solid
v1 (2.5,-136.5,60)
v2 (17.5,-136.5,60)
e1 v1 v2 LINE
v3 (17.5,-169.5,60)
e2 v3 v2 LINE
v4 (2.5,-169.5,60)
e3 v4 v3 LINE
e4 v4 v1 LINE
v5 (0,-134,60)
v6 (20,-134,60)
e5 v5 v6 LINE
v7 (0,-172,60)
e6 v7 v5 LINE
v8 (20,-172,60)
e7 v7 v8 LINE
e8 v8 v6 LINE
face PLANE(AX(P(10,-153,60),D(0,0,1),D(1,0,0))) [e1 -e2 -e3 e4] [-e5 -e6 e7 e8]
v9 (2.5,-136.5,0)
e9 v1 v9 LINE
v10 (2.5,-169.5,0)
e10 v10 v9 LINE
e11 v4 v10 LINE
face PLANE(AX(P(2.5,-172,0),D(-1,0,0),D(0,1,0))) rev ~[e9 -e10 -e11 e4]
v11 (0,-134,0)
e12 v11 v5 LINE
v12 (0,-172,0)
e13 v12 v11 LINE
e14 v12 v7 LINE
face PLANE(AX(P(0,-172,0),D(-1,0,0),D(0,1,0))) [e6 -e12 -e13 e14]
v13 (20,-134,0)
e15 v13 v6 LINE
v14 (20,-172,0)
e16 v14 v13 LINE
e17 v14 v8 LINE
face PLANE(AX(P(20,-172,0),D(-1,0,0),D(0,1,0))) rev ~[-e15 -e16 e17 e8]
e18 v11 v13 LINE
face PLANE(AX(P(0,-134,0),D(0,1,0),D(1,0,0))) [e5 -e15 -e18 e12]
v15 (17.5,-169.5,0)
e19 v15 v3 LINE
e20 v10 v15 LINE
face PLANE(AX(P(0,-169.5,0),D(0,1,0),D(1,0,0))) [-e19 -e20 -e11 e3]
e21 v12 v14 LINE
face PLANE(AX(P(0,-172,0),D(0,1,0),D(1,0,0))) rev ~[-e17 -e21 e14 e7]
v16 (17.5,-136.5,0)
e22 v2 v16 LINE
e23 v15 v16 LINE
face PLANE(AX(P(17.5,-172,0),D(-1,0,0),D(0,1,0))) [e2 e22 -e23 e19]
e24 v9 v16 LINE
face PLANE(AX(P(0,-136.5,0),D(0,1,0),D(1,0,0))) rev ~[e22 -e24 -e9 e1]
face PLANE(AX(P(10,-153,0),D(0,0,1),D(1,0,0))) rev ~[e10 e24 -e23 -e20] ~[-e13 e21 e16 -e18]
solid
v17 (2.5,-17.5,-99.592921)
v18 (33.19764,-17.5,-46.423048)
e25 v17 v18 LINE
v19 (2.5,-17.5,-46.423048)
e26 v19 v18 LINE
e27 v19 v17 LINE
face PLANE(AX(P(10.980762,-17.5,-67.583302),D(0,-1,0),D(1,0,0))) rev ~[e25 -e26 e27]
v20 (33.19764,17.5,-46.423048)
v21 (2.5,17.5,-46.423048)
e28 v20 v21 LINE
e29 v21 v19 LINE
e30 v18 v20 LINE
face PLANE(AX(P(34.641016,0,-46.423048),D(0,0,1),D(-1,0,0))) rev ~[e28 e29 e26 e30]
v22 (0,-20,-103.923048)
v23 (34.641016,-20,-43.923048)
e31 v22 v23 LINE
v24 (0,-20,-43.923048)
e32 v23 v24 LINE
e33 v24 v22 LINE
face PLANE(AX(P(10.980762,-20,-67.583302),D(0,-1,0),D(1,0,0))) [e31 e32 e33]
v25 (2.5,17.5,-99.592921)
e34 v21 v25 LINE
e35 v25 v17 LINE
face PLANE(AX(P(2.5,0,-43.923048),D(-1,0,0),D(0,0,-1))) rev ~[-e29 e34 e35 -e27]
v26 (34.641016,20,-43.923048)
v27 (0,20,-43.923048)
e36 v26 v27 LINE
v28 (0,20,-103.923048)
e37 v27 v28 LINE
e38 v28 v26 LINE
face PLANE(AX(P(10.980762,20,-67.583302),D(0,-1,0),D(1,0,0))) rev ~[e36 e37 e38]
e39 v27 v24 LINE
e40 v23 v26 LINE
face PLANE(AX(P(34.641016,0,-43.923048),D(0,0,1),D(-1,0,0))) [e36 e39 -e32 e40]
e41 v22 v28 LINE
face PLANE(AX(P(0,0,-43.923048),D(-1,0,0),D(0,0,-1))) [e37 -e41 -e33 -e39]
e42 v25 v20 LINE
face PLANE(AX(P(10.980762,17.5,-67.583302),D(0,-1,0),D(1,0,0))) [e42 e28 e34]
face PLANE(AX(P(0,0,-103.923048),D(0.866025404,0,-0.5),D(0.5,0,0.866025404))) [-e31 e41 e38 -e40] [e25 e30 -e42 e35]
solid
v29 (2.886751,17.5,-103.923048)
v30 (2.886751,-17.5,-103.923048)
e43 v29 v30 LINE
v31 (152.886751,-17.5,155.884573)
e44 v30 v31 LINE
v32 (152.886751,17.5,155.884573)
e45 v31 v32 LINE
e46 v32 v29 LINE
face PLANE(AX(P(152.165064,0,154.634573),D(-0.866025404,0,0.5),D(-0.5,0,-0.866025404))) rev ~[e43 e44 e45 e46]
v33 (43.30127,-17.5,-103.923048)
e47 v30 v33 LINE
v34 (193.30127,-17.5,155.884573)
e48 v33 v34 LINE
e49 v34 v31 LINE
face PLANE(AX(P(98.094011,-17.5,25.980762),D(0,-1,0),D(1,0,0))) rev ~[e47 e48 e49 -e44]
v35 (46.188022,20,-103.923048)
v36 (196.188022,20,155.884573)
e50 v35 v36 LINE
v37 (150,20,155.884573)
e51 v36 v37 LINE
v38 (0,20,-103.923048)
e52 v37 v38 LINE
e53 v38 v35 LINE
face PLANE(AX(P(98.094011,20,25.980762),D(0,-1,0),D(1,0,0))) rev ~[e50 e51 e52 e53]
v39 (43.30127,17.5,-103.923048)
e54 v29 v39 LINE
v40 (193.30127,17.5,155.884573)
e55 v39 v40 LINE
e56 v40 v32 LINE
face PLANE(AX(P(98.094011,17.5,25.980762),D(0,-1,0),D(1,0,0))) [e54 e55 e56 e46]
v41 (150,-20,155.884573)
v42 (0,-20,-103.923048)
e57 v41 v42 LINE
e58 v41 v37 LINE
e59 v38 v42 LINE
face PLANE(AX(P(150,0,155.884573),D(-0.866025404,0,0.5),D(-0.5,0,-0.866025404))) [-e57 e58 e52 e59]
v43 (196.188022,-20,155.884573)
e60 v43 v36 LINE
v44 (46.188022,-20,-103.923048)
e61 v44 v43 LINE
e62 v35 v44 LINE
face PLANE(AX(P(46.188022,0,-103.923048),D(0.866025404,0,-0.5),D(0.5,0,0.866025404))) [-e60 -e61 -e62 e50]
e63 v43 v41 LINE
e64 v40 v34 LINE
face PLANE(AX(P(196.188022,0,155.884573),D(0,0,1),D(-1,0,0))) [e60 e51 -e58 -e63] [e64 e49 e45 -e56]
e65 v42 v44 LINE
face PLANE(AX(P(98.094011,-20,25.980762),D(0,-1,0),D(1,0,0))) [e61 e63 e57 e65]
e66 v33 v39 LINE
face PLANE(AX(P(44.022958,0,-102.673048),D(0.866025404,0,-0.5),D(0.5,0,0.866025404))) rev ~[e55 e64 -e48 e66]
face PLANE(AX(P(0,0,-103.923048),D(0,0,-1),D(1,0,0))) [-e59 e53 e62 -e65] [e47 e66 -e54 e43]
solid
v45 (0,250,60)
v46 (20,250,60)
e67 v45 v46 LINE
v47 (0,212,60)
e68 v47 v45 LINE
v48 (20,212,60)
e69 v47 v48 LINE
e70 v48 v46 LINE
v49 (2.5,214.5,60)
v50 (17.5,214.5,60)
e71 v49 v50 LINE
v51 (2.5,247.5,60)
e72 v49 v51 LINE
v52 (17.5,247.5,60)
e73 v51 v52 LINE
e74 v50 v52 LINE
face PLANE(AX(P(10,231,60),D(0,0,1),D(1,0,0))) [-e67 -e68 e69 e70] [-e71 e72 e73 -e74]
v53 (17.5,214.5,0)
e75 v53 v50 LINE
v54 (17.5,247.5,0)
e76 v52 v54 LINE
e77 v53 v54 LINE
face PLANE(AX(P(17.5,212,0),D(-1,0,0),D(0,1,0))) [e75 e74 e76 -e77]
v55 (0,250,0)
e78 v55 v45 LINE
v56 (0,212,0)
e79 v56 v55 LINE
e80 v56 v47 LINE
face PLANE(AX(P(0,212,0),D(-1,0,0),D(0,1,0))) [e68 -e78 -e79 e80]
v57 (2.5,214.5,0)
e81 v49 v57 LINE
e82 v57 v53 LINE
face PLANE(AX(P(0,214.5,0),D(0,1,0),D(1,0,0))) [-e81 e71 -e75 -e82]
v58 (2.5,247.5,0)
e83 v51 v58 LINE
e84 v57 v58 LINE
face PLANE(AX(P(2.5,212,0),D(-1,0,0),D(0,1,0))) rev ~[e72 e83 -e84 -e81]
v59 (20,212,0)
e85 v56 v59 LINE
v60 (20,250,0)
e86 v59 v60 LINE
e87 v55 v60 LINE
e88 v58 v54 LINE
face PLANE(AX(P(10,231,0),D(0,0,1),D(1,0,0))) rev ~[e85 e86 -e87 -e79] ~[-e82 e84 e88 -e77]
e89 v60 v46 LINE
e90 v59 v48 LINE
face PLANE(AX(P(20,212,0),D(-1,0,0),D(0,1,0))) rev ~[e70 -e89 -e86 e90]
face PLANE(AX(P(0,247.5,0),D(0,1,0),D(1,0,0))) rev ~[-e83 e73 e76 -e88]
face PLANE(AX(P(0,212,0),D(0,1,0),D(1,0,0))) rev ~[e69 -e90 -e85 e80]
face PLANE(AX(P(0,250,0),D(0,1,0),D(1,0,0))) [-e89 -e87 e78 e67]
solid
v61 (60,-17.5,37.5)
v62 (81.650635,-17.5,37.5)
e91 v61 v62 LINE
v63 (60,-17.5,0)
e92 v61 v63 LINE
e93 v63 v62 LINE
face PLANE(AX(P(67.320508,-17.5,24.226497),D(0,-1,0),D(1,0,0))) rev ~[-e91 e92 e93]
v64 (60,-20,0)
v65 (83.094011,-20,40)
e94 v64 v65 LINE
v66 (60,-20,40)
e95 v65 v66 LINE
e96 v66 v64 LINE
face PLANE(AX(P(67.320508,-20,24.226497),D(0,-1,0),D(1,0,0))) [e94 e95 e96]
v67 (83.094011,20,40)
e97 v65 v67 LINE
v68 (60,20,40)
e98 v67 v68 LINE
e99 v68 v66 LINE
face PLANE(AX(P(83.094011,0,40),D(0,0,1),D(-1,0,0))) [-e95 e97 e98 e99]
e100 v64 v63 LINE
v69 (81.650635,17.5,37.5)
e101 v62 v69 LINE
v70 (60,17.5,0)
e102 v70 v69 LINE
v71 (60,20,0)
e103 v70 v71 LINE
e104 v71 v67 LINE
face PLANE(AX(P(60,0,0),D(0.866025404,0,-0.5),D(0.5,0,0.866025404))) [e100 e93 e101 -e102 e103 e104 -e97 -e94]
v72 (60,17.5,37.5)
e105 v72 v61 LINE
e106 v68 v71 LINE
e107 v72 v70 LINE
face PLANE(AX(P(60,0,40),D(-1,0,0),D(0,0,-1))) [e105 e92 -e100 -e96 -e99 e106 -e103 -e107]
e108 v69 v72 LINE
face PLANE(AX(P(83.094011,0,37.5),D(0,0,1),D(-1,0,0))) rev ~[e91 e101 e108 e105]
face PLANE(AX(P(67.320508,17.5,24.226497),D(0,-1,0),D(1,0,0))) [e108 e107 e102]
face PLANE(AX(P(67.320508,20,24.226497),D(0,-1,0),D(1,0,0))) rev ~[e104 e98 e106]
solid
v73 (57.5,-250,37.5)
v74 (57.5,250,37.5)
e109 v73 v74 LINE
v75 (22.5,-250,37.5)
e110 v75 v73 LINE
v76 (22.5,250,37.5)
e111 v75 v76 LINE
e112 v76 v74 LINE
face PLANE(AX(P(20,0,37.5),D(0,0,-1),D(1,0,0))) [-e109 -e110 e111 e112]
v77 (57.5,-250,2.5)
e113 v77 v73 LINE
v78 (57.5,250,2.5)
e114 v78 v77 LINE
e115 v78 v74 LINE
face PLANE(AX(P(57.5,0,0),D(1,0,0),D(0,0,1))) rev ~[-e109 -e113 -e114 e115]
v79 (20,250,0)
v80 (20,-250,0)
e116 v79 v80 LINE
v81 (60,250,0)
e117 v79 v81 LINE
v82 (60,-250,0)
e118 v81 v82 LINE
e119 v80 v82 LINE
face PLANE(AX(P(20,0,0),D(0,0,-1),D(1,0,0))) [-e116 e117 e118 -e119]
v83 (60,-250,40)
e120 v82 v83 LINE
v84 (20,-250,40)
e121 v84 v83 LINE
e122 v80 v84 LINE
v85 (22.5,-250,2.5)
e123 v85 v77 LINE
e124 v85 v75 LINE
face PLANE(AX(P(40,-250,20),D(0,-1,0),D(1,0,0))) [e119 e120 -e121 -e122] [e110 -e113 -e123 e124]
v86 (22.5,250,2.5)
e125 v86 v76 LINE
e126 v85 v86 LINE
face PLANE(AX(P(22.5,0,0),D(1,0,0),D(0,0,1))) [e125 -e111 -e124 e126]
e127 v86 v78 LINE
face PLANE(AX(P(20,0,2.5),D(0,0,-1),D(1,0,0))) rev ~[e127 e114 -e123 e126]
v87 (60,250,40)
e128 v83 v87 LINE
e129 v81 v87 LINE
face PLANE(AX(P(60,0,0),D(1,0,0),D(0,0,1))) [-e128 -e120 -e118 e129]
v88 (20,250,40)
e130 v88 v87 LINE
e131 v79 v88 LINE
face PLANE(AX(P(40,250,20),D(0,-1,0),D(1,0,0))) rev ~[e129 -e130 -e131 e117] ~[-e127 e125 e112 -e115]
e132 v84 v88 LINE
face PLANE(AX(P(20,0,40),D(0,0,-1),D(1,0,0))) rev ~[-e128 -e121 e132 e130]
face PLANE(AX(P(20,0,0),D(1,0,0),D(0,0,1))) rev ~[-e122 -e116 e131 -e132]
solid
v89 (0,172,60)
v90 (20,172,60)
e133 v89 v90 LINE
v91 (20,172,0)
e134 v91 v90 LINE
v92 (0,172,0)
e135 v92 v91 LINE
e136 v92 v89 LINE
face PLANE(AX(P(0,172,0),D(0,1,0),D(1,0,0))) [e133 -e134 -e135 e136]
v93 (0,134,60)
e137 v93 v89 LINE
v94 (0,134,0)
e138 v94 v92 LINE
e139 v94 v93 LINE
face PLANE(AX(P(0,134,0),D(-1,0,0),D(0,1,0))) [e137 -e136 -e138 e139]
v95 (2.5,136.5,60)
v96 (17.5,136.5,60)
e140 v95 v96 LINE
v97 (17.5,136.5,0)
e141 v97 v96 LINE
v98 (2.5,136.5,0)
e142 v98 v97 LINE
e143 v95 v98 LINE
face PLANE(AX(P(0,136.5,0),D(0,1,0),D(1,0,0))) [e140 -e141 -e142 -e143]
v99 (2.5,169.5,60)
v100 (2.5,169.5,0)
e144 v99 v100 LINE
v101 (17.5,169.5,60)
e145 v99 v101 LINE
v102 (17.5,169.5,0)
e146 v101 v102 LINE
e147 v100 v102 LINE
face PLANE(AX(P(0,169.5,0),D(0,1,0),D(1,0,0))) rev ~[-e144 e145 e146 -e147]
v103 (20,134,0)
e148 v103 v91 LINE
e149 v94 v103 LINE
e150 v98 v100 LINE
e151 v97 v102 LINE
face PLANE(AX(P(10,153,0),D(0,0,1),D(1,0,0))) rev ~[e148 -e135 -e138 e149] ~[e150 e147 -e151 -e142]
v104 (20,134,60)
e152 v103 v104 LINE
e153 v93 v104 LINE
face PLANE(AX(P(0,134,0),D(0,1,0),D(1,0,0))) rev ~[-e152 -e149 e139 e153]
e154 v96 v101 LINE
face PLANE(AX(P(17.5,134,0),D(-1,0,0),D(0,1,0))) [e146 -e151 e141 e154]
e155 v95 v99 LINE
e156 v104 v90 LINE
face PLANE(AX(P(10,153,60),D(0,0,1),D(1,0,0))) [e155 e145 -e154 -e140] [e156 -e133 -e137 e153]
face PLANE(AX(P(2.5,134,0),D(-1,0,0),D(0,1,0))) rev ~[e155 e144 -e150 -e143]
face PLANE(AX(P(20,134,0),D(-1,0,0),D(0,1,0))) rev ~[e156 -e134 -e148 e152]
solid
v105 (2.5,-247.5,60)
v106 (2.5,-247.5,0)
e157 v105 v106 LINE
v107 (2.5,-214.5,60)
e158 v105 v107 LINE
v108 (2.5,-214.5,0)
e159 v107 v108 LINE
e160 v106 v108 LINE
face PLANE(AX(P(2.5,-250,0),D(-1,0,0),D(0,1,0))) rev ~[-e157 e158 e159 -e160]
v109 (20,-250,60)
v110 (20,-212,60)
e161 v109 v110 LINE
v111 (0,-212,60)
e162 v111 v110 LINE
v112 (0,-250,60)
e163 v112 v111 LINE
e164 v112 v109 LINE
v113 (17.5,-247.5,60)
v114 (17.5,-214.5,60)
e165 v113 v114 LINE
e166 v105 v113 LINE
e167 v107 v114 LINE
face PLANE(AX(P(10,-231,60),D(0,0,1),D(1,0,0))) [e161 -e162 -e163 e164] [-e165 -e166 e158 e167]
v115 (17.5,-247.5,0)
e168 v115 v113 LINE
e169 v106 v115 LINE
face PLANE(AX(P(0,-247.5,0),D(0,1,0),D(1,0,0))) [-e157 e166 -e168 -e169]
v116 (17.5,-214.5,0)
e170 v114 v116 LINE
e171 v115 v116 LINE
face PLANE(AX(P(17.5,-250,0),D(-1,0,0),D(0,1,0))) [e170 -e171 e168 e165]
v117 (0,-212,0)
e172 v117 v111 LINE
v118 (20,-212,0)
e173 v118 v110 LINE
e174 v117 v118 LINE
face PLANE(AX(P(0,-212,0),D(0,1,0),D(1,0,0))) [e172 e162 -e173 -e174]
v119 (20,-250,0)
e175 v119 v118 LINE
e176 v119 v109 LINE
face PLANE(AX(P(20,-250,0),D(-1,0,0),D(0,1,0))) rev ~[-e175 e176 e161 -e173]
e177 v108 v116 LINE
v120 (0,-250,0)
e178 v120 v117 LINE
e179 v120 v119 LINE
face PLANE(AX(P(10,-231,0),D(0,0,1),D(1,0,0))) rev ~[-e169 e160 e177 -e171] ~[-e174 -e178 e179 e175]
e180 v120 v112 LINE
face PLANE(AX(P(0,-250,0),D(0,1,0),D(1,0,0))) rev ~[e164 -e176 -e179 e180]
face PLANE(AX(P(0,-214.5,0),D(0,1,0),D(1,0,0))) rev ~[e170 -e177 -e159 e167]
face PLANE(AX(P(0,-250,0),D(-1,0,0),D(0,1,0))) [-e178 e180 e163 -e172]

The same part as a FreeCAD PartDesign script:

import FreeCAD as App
import Part
import Sketcher
Q = App.Units.Quantity


def faces_at(feature, points):
    """Names of the faces that lie closest to the given points."""
    faces = feature.Shape.Faces
    near = lambda p: min(range(len(faces)), key=lambda i: faces[i].distToShape(Part.Vertex(*p))[0])
    return sorted({f"Face{near(p) + 1}" for p in points})


def add_polygon(sketch, points):
    """Adds a closed chain of lines whose ends are joined by coincident constraints."""
    first, n = sketch.GeometryCount, len(points)
    for a, b in zip(points, points[1:] + points[:1]):
        sketch.addGeometry(Part.LineSegment(App.Vector(*a, 0), App.Vector(*b, 0)), False)
    for i in range(n):
        sketch.addConstraint(Sketcher.Constraint("Coincident", first + i, 2, first + (i + 1) % n, 1))

doc = App.newDocument("Part")
body = doc.addObject("PartDesign::Body", "Body")

sketch1 = body.newObject("Sketcher::SketchObject", "Sketch")
sketch1.AttachmentSupport = (doc.getObject("XY_Plane"), [""])
sketch1.MapMode = "FlatFace"
add_polygon(sketch1, [(0, 250), (0, 212), (20, 212), (20, 250)])
sketch1.addConstraint([
    Sketcher.Constraint("Vertical", 0),
    Sketcher.Constraint("Horizontal", 1),
    Sketcher.Constraint("Vertical", 2),
    Sketcher.Constraint("Horizontal", 3),
    Sketcher.Constraint("PointOnObject", 0, 2, -2),
    Sketcher.Constraint("DistanceX", 1, 1, 1, 2, Q("20 mm")),
    Sketcher.Constraint("DistanceY", 0, 2, 0, 1, Q("38 mm")),
    Sketcher.Constraint("DistanceY", -1, 1, 0, 2, Q("212 mm")),
])
pad1 = body.newObject("PartDesign::Pad", "Pad")
pad1.Profile = sketch1
pad1.Length = 60
doc.recompute()

thickness = body.newObject("PartDesign::Thickness", "Thickness")
thickness.Base = (pad1, faces_at(pad1, [(10, 231, 60), (10, 231, 0)]))
thickness.Value = 2.5
thickness.Reversed = True
thickness.Join = "Arc"
body2 = doc.addObject("PartDesign::Body", "Body001")

sketch2 = body2.newObject("Sketcher::SketchObject", "Sketch001")
sketch2.AttachmentSupport = (doc.getObject("XY_Plane001"), [""])
sketch2.MapMode = "FlatFace"
add_polygon(sketch2, [(0, 172), (0, 134), (20, 134), (20, 172)])
sketch2.addConstraint([
    Sketcher.Constraint("Vertical", 0),
    Sketcher.Constraint("Horizontal", 1),
    Sketcher.Constraint("Vertical", 2),
    Sketcher.Constraint("Horizontal", 3),
    Sketcher.Constraint("PointOnObject", 0, 2, -2),
    Sketcher.Constraint("DistanceX", 1, 1, 1, 2, Q("20 mm")),
    Sketcher.Constraint("DistanceY", 0, 2, 0, 1, Q("38 mm")),
    Sketcher.Constraint("DistanceY", -1, 1, 0, 2, Q("134 mm")),
])
pad2 = body2.newObject("PartDesign::Pad", "Pad001")
pad2.Profile = sketch2
pad2.Length = 60
doc.recompute()

thickness2 = body2.newObject("PartDesign::Thickness", "Thickness001")
thickness2.Base = (pad2, faces_at(pad2, [(10, 153, 60), (10, 153, 0)]))
thickness2.Value = 2.5
thickness2.Reversed = True
thickness2.Join = "Arc"
body3 = doc.addObject("PartDesign::Body", "Body002")

sketch3 = body3.newObject("Sketcher::SketchObject", "Sketch002")
sketch3.AttachmentSupport = (doc.getObject("XY_Plane002"), [""])
sketch3.MapMode = "FlatFace"
add_polygon(sketch3, [(0, -212), (0, -250), (20, -250), (20, -212)])
sketch3.addConstraint([
    Sketcher.Constraint("Vertical", 0),
    Sketcher.Constraint("Horizontal", 1),
    Sketcher.Constraint("Vertical", 2),
    Sketcher.Constraint("Horizontal", 3),
    Sketcher.Constraint("PointOnObject", 0, 2, -2),
    Sketcher.Constraint("DistanceX", 1, 1, 1, 2, Q("20 mm")),
    Sketcher.Constraint("DistanceY", 0, 2, 0, 1, Q("38 mm")),
    Sketcher.Constraint("DistanceY", 0, 2, -1, 1, Q("250 mm")),
])
pad3 = body3.newObject("PartDesign::Pad", "Pad002")
pad3.Profile = sketch3
pad3.Length = 60
doc.recompute()

thickness3 = body3.newObject("PartDesign::Thickness", "Thickness002")
thickness3.Base = (pad3, faces_at(pad3, [(10, -231, 60), (10, -231, 0)]))
thickness3.Value = 2.5
thickness3.Reversed = True
thickness3.Join = "Arc"
body4 = doc.addObject("PartDesign::Body", "Body003")

sketch4 = body4.newObject("Sketcher::SketchObject", "Sketch003")
sketch4.AttachmentSupport = (doc.getObject("XY_Plane003"), [""])
sketch4.MapMode = "FlatFace"
add_polygon(sketch4, [(0, -134), (0, -172), (20, -172), (20, -134)])
sketch4.addConstraint([
    Sketcher.Constraint("Vertical", 0),
    Sketcher.Constraint("Horizontal", 1),
    Sketcher.Constraint("Vertical", 2),
    Sketcher.Constraint("Horizontal", 3),
    Sketcher.Constraint("PointOnObject", 0, 2, -2),
    Sketcher.Constraint("DistanceX", 1, 1, 1, 2, Q("20 mm")),
    Sketcher.Constraint("DistanceY", 0, 2, 0, 1, Q("38 mm")),
    Sketcher.Constraint("DistanceY", 0, 2, -1, 1, Q("172 mm")),
])
pad4 = body4.newObject("PartDesign::Pad", "Pad003")
pad4.Profile = sketch4
pad4.Length = 60
doc.recompute()

thickness4 = body4.newObject("PartDesign::Thickness", "Thickness003")
thickness4.Base = (pad4, faces_at(pad4, [(10, -153, 60), (10, -153, 0)]))
thickness4.Value = 2.5
thickness4.Reversed = True
thickness4.Join = "Arc"
body5 = doc.addObject("PartDesign::Body", "Body004")

sketch5 = body5.newObject("Sketcher::SketchObject", "Sketch004")
sketch5.AttachmentSupport = (doc.getObject("XZ_Plane004"), [""])
sketch5.MapMode = "FlatFace"
add_polygon(sketch5, [(20, 40), (20, 0), (60, 0), (60, 40)])
sketch5.addConstraint([
    Sketcher.Constraint("Vertical", 0),
    Sketcher.Constraint("Horizontal", 1),
    Sketcher.Constraint("Vertical", 2),
    Sketcher.Constraint("Horizontal", 3),
    Sketcher.Constraint("PointOnObject", 0, 2, -1),
    Sketcher.Constraint("Equal", 3, 0),
    Sketcher.Constraint("DistanceX", 1, 1, 1, 2, Q("40 mm")),
    Sketcher.Constraint("DistanceX", -1, 1, 0, 2, Q("20 mm")),
])
pad5 = body5.newObject("PartDesign::Pad", "Pad004")
pad5.Profile = sketch5
pad5.Type = "TwoLengths"
pad5.Length = 250
pad5.Length2 = 250
doc.recompute()

thickness5 = body5.newObject("PartDesign::Thickness", "Thickness004")
thickness5.Base = (pad5, faces_at(pad5, [(40, -250, 20), (40, 250, 20)]))
thickness5.Value = 2.5
thickness5.Reversed = True
thickness5.Join = "Arc"
body6 = doc.addObject("PartDesign::Body", "Body005")

sketch6 = body6.newObject("Sketcher::SketchObject", "Sketch005")
sketch6.AttachmentSupport = (doc.getObject("XZ_Plane005"), [""])
sketch6.MapMode = "FlatFace"
add_polygon(sketch6, [(150, 156), (0, -104), (46, -104), (196, 156)])
sketch6.addConstraint([
    Sketcher.Constraint("Horizontal", 1),
    Sketcher.Constraint("Horizontal", 3),
    Sketcher.Constraint("PointOnObject", 0, 2, -2),
    Sketcher.Constraint("Parallel", 0, 2),
    Sketcher.Constraint("Angle", 0, Q("-120 deg")),
    Sketcher.Constraint("Distance", 0, Q("300 mm")),
    Sketcher.Constraint("DistanceX", 1, 1, 1, 2, Q("46.188022 mm")),
    Sketcher.Constraint("DistanceY", 0, 2, -1, 1, Q("103.923048 mm")),
])
pad6 = body6.newObject("PartDesign::Pad", "Pad005")
pad6.Profile = sketch6
pad6.Type = "TwoLengths"
pad6.Length = 20
pad6.Length2 = 20
doc.recompute()

thickness6 = body6.newObject("PartDesign::Thickness", "Thickness005")
thickness6.Base = (pad6, faces_at(pad6, [(23.094, 0, -103.923), (173.094, 0, 155.885)]))
thickness6.Value = 2.5
thickness6.Reversed = True
thickness6.Join = "Arc"
body7 = doc.addObject("PartDesign::Body", "Body006")

sketch7 = body7.newObject("Sketcher::SketchObject", "Sketch006")
sketch7.AttachmentSupport = (doc.getObject("XZ_Plane006"), [""])
sketch7.MapMode = "FlatFace"
add_polygon(sketch7, [(35, -44), (0, -44), (0, -104)])
sketch7.addConstraint([
    Sketcher.Constraint("Horizontal", 0),
    Sketcher.Constraint("Vertical", 1),
    Sketcher.Constraint("PointOnObject", 0, 2, -2),
    Sketcher.Constraint("DistanceY", 1, 2, 1, 1, Q("60 mm")),
    Sketcher.Constraint("Angle", 2, Q("60 deg")),
    Sketcher.Constraint("DistanceY", 0, 2, -1, 1, Q("43.923048 mm")),
])
pad7 = body7.newObject("PartDesign::Pad", "Pad006")
pad7.Profile = sketch7
pad7.Type = "TwoLengths"
pad7.Length = 20
pad7.Length2 = 20
doc.recompute()

thickness7 = body7.newObject("PartDesign::Thickness", "Thickness006")
thickness7.Base = (pad7, faces_at(pad7, [(17.321, 0, -73.923)]))
thickness7.Value = 2.5
thickness7.Reversed = True
thickness7.Join = "Arc"
body8 = doc.addObject("PartDesign::Body", "Body007")

sketch8 = body8.newObject("Sketcher::SketchObject", "Sketch007")
sketch8.AttachmentSupport = (doc.getObject("XZ_Plane007"), [""])
sketch8.MapMode = "FlatFace"
add_polygon(sketch8, [(83, 40), (60, 40), (60, 0)])
sketch8.addConstraint([
    Sketcher.Constraint("Horizontal", 0),
    Sketcher.Constraint("Vertical", 1),
    Sketcher.Constraint("PointOnObject", 1, 2, -1),
    Sketcher.Constraint("DistanceY", 1, 2, 1, 1, Q("40 mm")),
    Sketcher.Constraint("Angle", 2, Q("60 deg")),
    Sketcher.Constraint("DistanceX", -1, 1, 0, 2, Q("60 mm")),
])
pad8 = body8.newObject("PartDesign::Pad", "Pad007")
pad8.Profile = sketch8
pad8.Type = "TwoLengths"
pad8.Length = 20
pad8.Length2 = 20
doc.recompute()

thickness8 = body8.newObject("PartDesign::Thickness", "Thickness007")
thickness8.Base = (pad8, faces_at(pad8, [(71.547, 0, 20), (60, 0, 20)]))
thickness8.Value = 2.5
thickness8.Reversed = True
thickness8.Join = "Arc"

doc.recompute()
